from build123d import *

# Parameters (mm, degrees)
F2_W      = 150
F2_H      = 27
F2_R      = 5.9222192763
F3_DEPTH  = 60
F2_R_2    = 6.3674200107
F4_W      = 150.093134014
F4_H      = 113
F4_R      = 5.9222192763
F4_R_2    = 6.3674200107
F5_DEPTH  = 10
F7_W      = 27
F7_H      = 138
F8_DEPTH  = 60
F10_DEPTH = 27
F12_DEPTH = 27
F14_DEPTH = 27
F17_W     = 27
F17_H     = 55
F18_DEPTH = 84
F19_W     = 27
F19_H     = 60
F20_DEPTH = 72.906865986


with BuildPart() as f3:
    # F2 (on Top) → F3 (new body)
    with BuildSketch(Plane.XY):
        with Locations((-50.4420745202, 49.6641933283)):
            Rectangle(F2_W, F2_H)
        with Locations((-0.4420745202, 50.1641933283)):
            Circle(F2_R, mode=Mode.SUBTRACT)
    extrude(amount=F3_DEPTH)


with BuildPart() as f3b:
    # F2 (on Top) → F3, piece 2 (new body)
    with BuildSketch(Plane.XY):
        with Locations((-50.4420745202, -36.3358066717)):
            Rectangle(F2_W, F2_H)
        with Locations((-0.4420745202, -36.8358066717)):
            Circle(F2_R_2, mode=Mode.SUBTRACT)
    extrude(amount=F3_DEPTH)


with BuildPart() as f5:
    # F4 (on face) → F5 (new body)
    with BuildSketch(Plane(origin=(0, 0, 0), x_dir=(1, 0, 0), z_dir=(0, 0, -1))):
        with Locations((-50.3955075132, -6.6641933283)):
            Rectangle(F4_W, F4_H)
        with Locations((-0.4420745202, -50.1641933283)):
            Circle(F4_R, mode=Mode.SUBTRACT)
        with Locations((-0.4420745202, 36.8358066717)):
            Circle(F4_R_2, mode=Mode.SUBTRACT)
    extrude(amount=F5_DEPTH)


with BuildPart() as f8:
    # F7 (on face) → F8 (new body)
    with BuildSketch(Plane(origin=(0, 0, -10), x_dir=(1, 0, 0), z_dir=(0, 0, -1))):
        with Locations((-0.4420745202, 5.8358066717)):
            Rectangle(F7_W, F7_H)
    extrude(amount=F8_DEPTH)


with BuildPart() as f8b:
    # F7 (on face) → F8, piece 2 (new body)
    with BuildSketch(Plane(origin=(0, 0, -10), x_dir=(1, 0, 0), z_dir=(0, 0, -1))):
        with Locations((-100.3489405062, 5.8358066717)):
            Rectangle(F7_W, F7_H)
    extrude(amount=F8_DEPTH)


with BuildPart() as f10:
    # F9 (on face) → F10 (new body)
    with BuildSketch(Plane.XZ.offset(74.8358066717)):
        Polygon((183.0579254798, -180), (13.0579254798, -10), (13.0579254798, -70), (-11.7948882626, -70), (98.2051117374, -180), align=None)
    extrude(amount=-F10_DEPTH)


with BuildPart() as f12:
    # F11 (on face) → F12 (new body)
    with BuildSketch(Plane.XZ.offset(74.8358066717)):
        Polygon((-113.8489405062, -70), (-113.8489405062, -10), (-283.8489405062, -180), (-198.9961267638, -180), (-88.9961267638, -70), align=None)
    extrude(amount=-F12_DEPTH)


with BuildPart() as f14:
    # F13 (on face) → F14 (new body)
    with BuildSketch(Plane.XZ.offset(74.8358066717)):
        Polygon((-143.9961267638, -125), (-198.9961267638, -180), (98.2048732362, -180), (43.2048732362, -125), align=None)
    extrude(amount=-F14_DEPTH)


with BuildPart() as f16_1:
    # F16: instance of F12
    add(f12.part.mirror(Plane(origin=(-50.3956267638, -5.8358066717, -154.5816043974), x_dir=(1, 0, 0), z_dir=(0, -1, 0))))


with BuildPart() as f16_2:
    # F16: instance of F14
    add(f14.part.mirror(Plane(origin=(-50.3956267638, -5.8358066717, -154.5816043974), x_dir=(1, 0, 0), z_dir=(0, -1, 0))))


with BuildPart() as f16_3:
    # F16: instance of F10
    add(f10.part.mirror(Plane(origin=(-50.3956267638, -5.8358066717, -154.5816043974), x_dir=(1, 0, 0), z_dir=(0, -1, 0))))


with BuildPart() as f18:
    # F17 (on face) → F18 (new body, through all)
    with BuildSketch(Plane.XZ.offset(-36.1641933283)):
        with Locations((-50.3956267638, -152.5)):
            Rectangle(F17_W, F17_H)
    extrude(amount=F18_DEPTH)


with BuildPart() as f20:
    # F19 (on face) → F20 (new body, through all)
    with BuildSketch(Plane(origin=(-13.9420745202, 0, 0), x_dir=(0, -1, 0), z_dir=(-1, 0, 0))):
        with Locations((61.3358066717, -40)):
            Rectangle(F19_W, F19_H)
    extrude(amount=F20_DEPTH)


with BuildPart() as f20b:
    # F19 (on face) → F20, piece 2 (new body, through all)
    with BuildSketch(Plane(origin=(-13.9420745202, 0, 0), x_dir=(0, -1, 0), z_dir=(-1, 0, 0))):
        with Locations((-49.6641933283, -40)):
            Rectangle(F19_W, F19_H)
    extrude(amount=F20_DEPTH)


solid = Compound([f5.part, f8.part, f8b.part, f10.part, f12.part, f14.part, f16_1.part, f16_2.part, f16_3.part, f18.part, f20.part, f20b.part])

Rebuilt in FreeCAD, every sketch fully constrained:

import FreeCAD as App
import Part
import Sketcher

V = App.Vector
Q = App.Units.Quantity


def add_polygon(sketch, points):
    """Adds a closed chain of lines whose ends are joined by coincident constraints."""
    first, n = sketch.GeometryCount, len(points)
    for a, b in zip(points, points[1:] + points[:1]):
        sketch.addGeometry(Part.LineSegment(App.Vector(*a, 0), App.Vector(*b, 0)), False)
    for i in range(n):
        sketch.addConstraint(Sketcher.Constraint("Coincident", first + i, 2, first + (i + 1) % n, 1))

doc = App.newDocument("Part")
body = doc.addObject("PartDesign::Body", "Body")

# Sketch on XY plane
sketch1 = doc.addObject("Sketcher::SketchObject", "Sketch")
body.addObject(sketch1)
sketch1.AttachmentSupport = (doc.XY_Plane, [""])
sketch1.MapMode = "FlatFace"
add_polygon(sketch1, [(-125, 63), (-125, 36), (25, 36), (25, 63)])  # lines 0-3
sketch1.addGeometry(Part.Circle(V(0, 50, 0), V(0, 0, 1), 6), False)  # 4
sketch1.addConstraint([
    Sketcher.Constraint("Vertical", 0),
    Sketcher.Constraint("Horizontal", 1),
    Sketcher.Constraint("Vertical", 2),
    Sketcher.Constraint("Horizontal", 3),
    Sketcher.Constraint("DistanceX", 1, 1, 1, 2, 150.0),
    Sketcher.Constraint("DistanceY", 0, 2, 0, 1, 27.0),
    Sketcher.Constraint("DistanceX", 0, 2, 4, 3, 125.0),
    Sketcher.Constraint("DistanceY", 0, 2, 4, 3, 14.0),
    Sketcher.Constraint("Diameter", 4, 11.844439),
    Sketcher.Constraint("DistanceX", 4, 3, -1, 1, 0.442075),
    Sketcher.Constraint("DistanceY", -1, 1, 4, 3, 50.164193),
])
pad1 = doc.addObject("PartDesign::Pad", "Pad")
body.addObject(pad1)
pad1.Profile = sketch1
pad1.Length = 60
body2 = doc.addObject("PartDesign::Body", "Body001")

# Sketch on XY plane
sketch2 = doc.addObject("Sketcher::SketchObject", "Sketch001")
body2.addObject(sketch2)
sketch2.AttachmentSupport = (doc.getObject("XY_Plane001"), [""])
sketch2.MapMode = "FlatFace"
add_polygon(sketch2, [(-125, -23), (-125, -50), (25, -50), (25, -23)])  # lines 0-3
sketch2.addGeometry(Part.Circle(V(0, -37, 0), V(0, 0, 1), 6), False)  # 4
sketch2.addConstraint([
    Sketcher.Constraint("Vertical", 0),
    Sketcher.Constraint("Horizontal", 1),
    Sketcher.Constraint("Vertical", 2),
    Sketcher.Constraint("Horizontal", 3),
    Sketcher.Constraint("DistanceX", 1, 1, 1, 2, 150.0),
    Sketcher.Constraint("DistanceY", 0, 2, 0, 1, 27.0),
    Sketcher.Constraint("DistanceX", 0, 2, 4, 3, 125.0),
    Sketcher.Constraint("DistanceY", 0, 2, 4, 3, 13.0),
    Sketcher.Constraint("Diameter", 4, 12.73484),
    Sketcher.Constraint("DistanceX", 4, 3, -1, 1, 0.442075),
    Sketcher.Constraint("DistanceY", 4, 3, -1, 1, 36.835807),
])
pad2 = doc.addObject("PartDesign::Pad", "Pad001")
body2.addObject(pad2)
pad2.Profile = sketch2
pad2.Length = 60
body3 = doc.addObject("PartDesign::Body", "Body002")

# Sketch on XY plane
sketch3 = doc.addObject("Sketcher::SketchObject", "Sketch002")
body3.addObject(sketch3)
sketch3.AttachmentSupport = (doc.getObject("XY_Plane002"), [""])
sketch3.MapMode = "FlatFace"
add_polygon(sketch3, [(-125, -50), (-125, 63), (25, 63), (25, -50)])  # lines 0-3
sketch3.addGeometry(Part.Circle(V(0, 50, 0), V(0, 0, 1), 6), False)  # 4
sketch3.addGeometry(Part.Circle(V(0, -37, 0), V(0, 0, 1), 6), False)  # 5
sketch3.addConstraint([
    Sketcher.Constraint("Vertical", 0),
    Sketcher.Constraint("Horizontal", 1),
    Sketcher.Constraint("Vertical", 2),
    Sketcher.Constraint("Horizontal", 3),
    Sketcher.Constraint("Vertical", 4, 3, 5, 3),
    Sketcher.Constraint("DistanceY", 0, 1, 0, 2, 113.0),
    Sketcher.Constraint("DistanceY", 5, 3, 4, 3, 87.0),
    Sketcher.Constraint("DistanceX", 0, 2, 4, 3, 125.0),
    Sketcher.Constraint("DistanceY", 4, 3, 0, 2, 13.0),
    Sketcher.Constraint("Diameter", 4, 11.844439),
    Sketcher.Constraint("Diameter", 5, 12.73484),
    Sketcher.Constraint("DistanceX", 1, 1, 1, 2, 150.093134),
    Sketcher.Constraint("DistanceX", -1, 1, 1, 2, 24.651059),
    Sketcher.Constraint("DistanceY", -1, 1, 4, 3, 50.164193),
])
pad3 = doc.addObject("PartDesign::Pad", "Pad002")
body3.addObject(pad3)
pad3.Profile = sketch3
pad3.Length = 10
pad3.Reversed = True
body4 = doc.addObject("PartDesign::Body", "Body003")

# Sketch on XY plane
sketch4 = doc.addObject("Sketcher::SketchObject", "Sketch003")
body4.addObject(sketch4)
sketch4.AttachmentSupport = (doc.getObject("XY_Plane003"), [""])
sketch4.MapMode = "FlatFace"
sketch4.AttachmentOffset = App.Placement(V(0, 0, -10), App.Rotation())
add_polygon(sketch4, [(-14, -75), (-14, 63), (13, 63), (13, -75)])  # lines 0-3
sketch4.addConstraint([
    Sketcher.Constraint("Vertical", 0),
    Sketcher.Constraint("Horizontal", 1),
    Sketcher.Constraint("Vertical", 2),
    Sketcher.Constraint("Horizontal", 3),
    Sketcher.Constraint("DistanceX", 1, 1, 1, 2, 27.0),
    Sketcher.Constraint("DistanceY", 0, 1, 0, 2, 138.0),
    Sketcher.Constraint("DistanceX", 0, 2, -1, 1, 13.942075),
    Sketcher.Constraint("DistanceY", -1, 1, 0, 2, 63.164193),
])
pad4 = doc.addObject("PartDesign::Pad", "Pad003")
body4.addObject(pad4)
pad4.Profile = sketch4
pad4.Length = 60
pad4.Reversed = True
body5 = doc.addObject("PartDesign::Body", "Body004")

# Sketch on XY plane
sketch5 = doc.addObject("Sketcher::SketchObject", "Sketch004")
body5.addObject(sketch5)
sketch5.AttachmentSupport = (doc.getObject("XY_Plane004"), [""])
sketch5.MapMode = "FlatFace"
sketch5.AttachmentOffset = App.Placement(V(0, 0, -10), App.Rotation())
add_polygon(sketch5, [(-114, -75), (-114, 63), (-87, 63), (-87, -75)])  # lines 0-3
sketch5.addConstraint([
    Sketcher.Constraint("Vertical", 0),
    Sketcher.Constraint("Horizontal", 1),
    Sketcher.Constraint("Vertical", 2),
    Sketcher.Constraint("Horizontal", 3),
    Sketcher.Constraint("DistanceX", 1, 1, 1, 2, 27.0),
    Sketcher.Constraint("DistanceY", 0, 1, 0, 2, 138.0),
    Sketcher.Constraint("DistanceX", 0, 2, -1, 1, 113.848941),
    Sketcher.Constraint("DistanceY", -1, 1, 0, 2, 63.164193),
])
pad5 = doc.addObject("PartDesign::Pad", "Pad004")
body5.addObject(pad5)
pad5.Profile = sketch5
pad5.Length = 60
pad5.Reversed = True
body6 = doc.addObject("PartDesign::Body", "Body005")

# Sketch on XZ plane
sketch6 = doc.addObject("Sketcher::SketchObject", "Sketch005")
body6.addObject(sketch6)
sketch6.AttachmentSupport = (doc.getObject("XZ_Plane005"), [""])
sketch6.MapMode = "FlatFace"
sketch6.AttachmentOffset = App.Placement(V(0, 0, 74.835807), App.Rotation())
add_polygon(sketch6, [(183, -180), (13, -10), (13, -70), (-12, -70), (98, -180)])  # lines 0-4
sketch6.addConstraint([
    Sketcher.Constraint("Vertical", 1),
    Sketcher.Constraint("Horizontal", 2),
    Sketcher.Constraint("Horizontal", 4),
    Sketcher.Constraint("Parallel", 0, 3),
    Sketcher.Constraint("DistanceY", 1, 2, 1, 1, 60.0),
    Sketcher.Constraint("Angle", 0, Q("135 deg")),
    Sketcher.Constraint("DistanceY", 0, 2, -1, 1, 10.0),
    Sketcher.Constraint("DistanceY", 3, 2, -1, 1, 180.0),
    Sketcher.Constraint("DistanceX", 2, 2, 2, 1, 24.852814),
    Sketcher.Constraint("DistanceX", 2, 2, -1, 1, 11.794888),
])
pad6 = doc.addObject("PartDesign::Pad", "Pad005")
body6.addObject(pad6)
pad6.Profile = sketch6
pad6.Length = 27
pad6.Reversed = True
body7 = doc.addObject("PartDesign::Body", "Body006")

# Sketch on XZ plane
sketch7 = doc.addObject("Sketcher::SketchObject", "Sketch006")
body7.addObject(sketch7)
sketch7.AttachmentSupport = (doc.getObject("XZ_Plane006"), [""])
sketch7.MapMode = "FlatFace"
sketch7.AttachmentOffset = App.Placement(V(0, 0, 74.835807), App.Rotation())
add_polygon(sketch7, [(-114, -70), (-114, -10), (-284, -180), (-199, -180), (-89, -70)])  # lines 0-4
sketch7.addConstraint([
    Sketcher.Constraint("Vertical", 0),
    Sketcher.Constraint("Horizontal", 2),
    Sketcher.Constraint("Horizontal", 4),
    Sketcher.Constraint("Parallel", 1, 3),
    Sketcher.Constraint("DistanceY", 0, 1, 0, 2, 60.0),
    Sketcher.Constraint("Angle", 1, Q("-135 deg")),
    Sketcher.Constraint("DistanceY", 0, 2, -1, 1, 10.0),
    Sketcher.Constraint("DistanceY", 1, 2, -1, 1, 180.0),
    Sketcher.Constraint("DistanceX", 2, 1, 2, 2, 84.852814),
    Sketcher.Constraint("DistanceX", 0, 2, -1, 1, 113.848941),
])
pad7 = doc.addObject("PartDesign::Pad", "Pad006")
body7.addObject(pad7)
pad7.Profile = sketch7
pad7.Length = 27
pad7.Reversed = True
body8 = doc.addObject("PartDesign::Body", "Body007")

# Sketch on XZ plane
sketch8 = doc.addObject("Sketcher::SketchObject", "Sketch007")
body8.addObject(sketch8)
sketch8.AttachmentSupport = (doc.getObject("XZ_Plane007"), [""])
sketch8.MapMode = "FlatFace"
sketch8.AttachmentOffset = App.Placement(V(0, 0, 74.835807), App.Rotation())
add_polygon(sketch8, [(-144, -125), (-199, -180), (98, -180), (43, -125)])  # lines 0-3
sketch8.addConstraint([
    Sketcher.Constraint("Horizontal", 1),
    Sketcher.Constraint("Horizontal", 3),
    Sketcher.Constraint("Perpendicular", 0, 2),
    Sketcher.Constraint("Equal", 0, 2),
    Sketcher.Constraint("DistanceY", 0, 2, -1, 1, 180.0),
    Sketcher.Constraint("DistanceY", 2, 2, -1, 1, 125.0),
    Sketcher.Constraint("DistanceX", 1, 1, 1, 2, 297.201),
    Sketcher.Constraint("DistanceX", 0, 2, -1, 1, 198.996127),
])
pad8 = doc.addObject("PartDesign::Pad", "Pad007")
body8.addObject(pad8)
pad8.Profile = sketch8
pad8.Length = 27
pad8.Reversed = True
body9 = doc.addObject("PartDesign::Body", "Body008")
doc.recompute()

mirroring = doc.addObject("Part::Mirroring", "Mirroring")
mirroring.Source = body7
mirroring.Base = V(-50.395627, -5.835807, -154.581604)
mirroring.Normal = V(0, -1, 0)
body9.BaseFeature = mirroring
doc.recompute()
body10 = doc.addObject("PartDesign::Body", "Body009")
doc.recompute()

mirroring2 = doc.addObject("Part::Mirroring", "Mirroring001")
mirroring2.Source = body8
mirroring2.Base = V(-50.395627, -5.835807, -154.581604)
mirroring2.Normal = V(0, -1, 0)
body10.BaseFeature = mirroring2
doc.recompute()
body11 = doc.addObject("PartDesign::Body", "Body010")
doc.recompute()

mirroring3 = doc.addObject("Part::Mirroring", "Mirroring002")
mirroring3.Source = body6
mirroring3.Base = V(-50.395627, -5.835807, -154.581604)
mirroring3.Normal = V(0, -1, 0)
body11.BaseFeature = mirroring3
doc.recompute()
body12 = doc.addObject("PartDesign::Body", "Body011")

# Sketch on XZ plane
sketch9 = doc.addObject("Sketcher::SketchObject", "Sketch008")
body12.addObject(sketch9)
sketch9.AttachmentSupport = (doc.getObject("XZ_Plane011"), [""])
sketch9.MapMode = "FlatFace"
sketch9.AttachmentOffset = App.Placement(V(0, 0, -36.164193), App.Rotation())
add_polygon(sketch9, [(-64, -125), (-64, -180), (-37, -180), (-37, -125)])  # lines 0-3
sketch9.addConstraint([
    Sketcher.Constraint("Vertical", 0),
    Sketcher.Constraint("Horizontal", 1),
    Sketcher.Constraint("Vertical", 2),
    Sketcher.Constraint("Horizontal", 3),
    Sketcher.Constraint("DistanceX", 1, 1, 1, 2, 27.0),
    Sketcher.Constraint("DistanceY", 0, 2, 0, 1, 55.0),
    Sketcher.Constraint("DistanceY", 0, 2, -1, 1, 180.0),
    Sketcher.Constraint("DistanceX", 0, 2, -1, 1, 63.895627),
])
pad9 = doc.addObject("PartDesign::Pad", "Pad008")
body12.addObject(pad9)
pad9.Profile = sketch9
pad9.Length = 84
body13 = doc.addObject("PartDesign::Body", "Body012")

# Sketch on YZ plane
sketch10 = doc.addObject("Sketcher::SketchObject", "Sketch009")
body13.addObject(sketch10)
sketch10.AttachmentSupport = (doc.getObject("YZ_Plane012"), [""])
sketch10.MapMode = "FlatFace"
sketch10.AttachmentOffset = App.Placement(V(0, 0, -13.942075), App.Rotation())
add_polygon(sketch10, [(-48, -10), (-48, -70), (-75, -70), (-75, -10)])  # lines 0-3
sketch10.addConstraint([
    Sketcher.Constraint("Vertical", 0),
    Sketcher.Constraint("Horizontal", 1),
    Sketcher.Constraint("Vertical", 2),
    Sketcher.Constraint("Horizontal", 3),
    Sketcher.Constraint("DistanceX", 1, 2, 1, 1, 27.0),
    Sketcher.Constraint("DistanceY", 0, 2, 0, 1, 60.0),
    Sketcher.Constraint("DistanceY", 0, 2, -1, 1, 70.0),
    Sketcher.Constraint("DistanceX", 0, 2, -1, 1, 47.835807),
])
pad10 = doc.addObject("PartDesign::Pad", "Pad009")
body13.addObject(pad10)
pad10.Profile = sketch10
pad10.Length = 72.906866
pad10.Reversed = True
body14 = doc.addObject("PartDesign::Body", "Body013")

# Sketch on YZ plane
sketch11 = doc.addObject("Sketcher::SketchObject", "Sketch010")
body14.addObject(sketch11)
sketch11.AttachmentSupport = (doc.getObject("YZ_Plane013"), [""])
sketch11.MapMode = "FlatFace"
sketch11.AttachmentOffset = App.Placement(V(0, 0, -13.942075), App.Rotation())
add_polygon(sketch11, [(63, -10), (63, -70), (36, -70), (36, -10)])  # lines 0-3
sketch11.addConstraint([
    Sketcher.Constraint("Vertical", 0),
    Sketcher.Constraint("Horizontal", 1),
    Sketcher.Constraint("Vertical", 2),
    Sketcher.Constraint("Horizontal", 3),
    Sketcher.Constraint("DistanceX", 1, 2, 1, 1, 27.0),
    Sketcher.Constraint("DistanceY", 0, 2, 0, 1, 60.0),
    Sketcher.Constraint("DistanceY", 0, 2, -1, 1, 70.0),
    Sketcher.Constraint("DistanceX", -1, 1, 0, 2, 63.164193),
])
pad11 = doc.addObject("PartDesign::Pad", "Pad010")
body14.addObject(pad11)
pad11.Profile = sketch11
pad11.Length = 72.906866
pad11.Reversed = True
body.Visibility = False
body2.Visibility = False
mirroring.Visibility = False
mirroring2.Visibility = False
mirroring3.Visibility = False

doc.recompute()
